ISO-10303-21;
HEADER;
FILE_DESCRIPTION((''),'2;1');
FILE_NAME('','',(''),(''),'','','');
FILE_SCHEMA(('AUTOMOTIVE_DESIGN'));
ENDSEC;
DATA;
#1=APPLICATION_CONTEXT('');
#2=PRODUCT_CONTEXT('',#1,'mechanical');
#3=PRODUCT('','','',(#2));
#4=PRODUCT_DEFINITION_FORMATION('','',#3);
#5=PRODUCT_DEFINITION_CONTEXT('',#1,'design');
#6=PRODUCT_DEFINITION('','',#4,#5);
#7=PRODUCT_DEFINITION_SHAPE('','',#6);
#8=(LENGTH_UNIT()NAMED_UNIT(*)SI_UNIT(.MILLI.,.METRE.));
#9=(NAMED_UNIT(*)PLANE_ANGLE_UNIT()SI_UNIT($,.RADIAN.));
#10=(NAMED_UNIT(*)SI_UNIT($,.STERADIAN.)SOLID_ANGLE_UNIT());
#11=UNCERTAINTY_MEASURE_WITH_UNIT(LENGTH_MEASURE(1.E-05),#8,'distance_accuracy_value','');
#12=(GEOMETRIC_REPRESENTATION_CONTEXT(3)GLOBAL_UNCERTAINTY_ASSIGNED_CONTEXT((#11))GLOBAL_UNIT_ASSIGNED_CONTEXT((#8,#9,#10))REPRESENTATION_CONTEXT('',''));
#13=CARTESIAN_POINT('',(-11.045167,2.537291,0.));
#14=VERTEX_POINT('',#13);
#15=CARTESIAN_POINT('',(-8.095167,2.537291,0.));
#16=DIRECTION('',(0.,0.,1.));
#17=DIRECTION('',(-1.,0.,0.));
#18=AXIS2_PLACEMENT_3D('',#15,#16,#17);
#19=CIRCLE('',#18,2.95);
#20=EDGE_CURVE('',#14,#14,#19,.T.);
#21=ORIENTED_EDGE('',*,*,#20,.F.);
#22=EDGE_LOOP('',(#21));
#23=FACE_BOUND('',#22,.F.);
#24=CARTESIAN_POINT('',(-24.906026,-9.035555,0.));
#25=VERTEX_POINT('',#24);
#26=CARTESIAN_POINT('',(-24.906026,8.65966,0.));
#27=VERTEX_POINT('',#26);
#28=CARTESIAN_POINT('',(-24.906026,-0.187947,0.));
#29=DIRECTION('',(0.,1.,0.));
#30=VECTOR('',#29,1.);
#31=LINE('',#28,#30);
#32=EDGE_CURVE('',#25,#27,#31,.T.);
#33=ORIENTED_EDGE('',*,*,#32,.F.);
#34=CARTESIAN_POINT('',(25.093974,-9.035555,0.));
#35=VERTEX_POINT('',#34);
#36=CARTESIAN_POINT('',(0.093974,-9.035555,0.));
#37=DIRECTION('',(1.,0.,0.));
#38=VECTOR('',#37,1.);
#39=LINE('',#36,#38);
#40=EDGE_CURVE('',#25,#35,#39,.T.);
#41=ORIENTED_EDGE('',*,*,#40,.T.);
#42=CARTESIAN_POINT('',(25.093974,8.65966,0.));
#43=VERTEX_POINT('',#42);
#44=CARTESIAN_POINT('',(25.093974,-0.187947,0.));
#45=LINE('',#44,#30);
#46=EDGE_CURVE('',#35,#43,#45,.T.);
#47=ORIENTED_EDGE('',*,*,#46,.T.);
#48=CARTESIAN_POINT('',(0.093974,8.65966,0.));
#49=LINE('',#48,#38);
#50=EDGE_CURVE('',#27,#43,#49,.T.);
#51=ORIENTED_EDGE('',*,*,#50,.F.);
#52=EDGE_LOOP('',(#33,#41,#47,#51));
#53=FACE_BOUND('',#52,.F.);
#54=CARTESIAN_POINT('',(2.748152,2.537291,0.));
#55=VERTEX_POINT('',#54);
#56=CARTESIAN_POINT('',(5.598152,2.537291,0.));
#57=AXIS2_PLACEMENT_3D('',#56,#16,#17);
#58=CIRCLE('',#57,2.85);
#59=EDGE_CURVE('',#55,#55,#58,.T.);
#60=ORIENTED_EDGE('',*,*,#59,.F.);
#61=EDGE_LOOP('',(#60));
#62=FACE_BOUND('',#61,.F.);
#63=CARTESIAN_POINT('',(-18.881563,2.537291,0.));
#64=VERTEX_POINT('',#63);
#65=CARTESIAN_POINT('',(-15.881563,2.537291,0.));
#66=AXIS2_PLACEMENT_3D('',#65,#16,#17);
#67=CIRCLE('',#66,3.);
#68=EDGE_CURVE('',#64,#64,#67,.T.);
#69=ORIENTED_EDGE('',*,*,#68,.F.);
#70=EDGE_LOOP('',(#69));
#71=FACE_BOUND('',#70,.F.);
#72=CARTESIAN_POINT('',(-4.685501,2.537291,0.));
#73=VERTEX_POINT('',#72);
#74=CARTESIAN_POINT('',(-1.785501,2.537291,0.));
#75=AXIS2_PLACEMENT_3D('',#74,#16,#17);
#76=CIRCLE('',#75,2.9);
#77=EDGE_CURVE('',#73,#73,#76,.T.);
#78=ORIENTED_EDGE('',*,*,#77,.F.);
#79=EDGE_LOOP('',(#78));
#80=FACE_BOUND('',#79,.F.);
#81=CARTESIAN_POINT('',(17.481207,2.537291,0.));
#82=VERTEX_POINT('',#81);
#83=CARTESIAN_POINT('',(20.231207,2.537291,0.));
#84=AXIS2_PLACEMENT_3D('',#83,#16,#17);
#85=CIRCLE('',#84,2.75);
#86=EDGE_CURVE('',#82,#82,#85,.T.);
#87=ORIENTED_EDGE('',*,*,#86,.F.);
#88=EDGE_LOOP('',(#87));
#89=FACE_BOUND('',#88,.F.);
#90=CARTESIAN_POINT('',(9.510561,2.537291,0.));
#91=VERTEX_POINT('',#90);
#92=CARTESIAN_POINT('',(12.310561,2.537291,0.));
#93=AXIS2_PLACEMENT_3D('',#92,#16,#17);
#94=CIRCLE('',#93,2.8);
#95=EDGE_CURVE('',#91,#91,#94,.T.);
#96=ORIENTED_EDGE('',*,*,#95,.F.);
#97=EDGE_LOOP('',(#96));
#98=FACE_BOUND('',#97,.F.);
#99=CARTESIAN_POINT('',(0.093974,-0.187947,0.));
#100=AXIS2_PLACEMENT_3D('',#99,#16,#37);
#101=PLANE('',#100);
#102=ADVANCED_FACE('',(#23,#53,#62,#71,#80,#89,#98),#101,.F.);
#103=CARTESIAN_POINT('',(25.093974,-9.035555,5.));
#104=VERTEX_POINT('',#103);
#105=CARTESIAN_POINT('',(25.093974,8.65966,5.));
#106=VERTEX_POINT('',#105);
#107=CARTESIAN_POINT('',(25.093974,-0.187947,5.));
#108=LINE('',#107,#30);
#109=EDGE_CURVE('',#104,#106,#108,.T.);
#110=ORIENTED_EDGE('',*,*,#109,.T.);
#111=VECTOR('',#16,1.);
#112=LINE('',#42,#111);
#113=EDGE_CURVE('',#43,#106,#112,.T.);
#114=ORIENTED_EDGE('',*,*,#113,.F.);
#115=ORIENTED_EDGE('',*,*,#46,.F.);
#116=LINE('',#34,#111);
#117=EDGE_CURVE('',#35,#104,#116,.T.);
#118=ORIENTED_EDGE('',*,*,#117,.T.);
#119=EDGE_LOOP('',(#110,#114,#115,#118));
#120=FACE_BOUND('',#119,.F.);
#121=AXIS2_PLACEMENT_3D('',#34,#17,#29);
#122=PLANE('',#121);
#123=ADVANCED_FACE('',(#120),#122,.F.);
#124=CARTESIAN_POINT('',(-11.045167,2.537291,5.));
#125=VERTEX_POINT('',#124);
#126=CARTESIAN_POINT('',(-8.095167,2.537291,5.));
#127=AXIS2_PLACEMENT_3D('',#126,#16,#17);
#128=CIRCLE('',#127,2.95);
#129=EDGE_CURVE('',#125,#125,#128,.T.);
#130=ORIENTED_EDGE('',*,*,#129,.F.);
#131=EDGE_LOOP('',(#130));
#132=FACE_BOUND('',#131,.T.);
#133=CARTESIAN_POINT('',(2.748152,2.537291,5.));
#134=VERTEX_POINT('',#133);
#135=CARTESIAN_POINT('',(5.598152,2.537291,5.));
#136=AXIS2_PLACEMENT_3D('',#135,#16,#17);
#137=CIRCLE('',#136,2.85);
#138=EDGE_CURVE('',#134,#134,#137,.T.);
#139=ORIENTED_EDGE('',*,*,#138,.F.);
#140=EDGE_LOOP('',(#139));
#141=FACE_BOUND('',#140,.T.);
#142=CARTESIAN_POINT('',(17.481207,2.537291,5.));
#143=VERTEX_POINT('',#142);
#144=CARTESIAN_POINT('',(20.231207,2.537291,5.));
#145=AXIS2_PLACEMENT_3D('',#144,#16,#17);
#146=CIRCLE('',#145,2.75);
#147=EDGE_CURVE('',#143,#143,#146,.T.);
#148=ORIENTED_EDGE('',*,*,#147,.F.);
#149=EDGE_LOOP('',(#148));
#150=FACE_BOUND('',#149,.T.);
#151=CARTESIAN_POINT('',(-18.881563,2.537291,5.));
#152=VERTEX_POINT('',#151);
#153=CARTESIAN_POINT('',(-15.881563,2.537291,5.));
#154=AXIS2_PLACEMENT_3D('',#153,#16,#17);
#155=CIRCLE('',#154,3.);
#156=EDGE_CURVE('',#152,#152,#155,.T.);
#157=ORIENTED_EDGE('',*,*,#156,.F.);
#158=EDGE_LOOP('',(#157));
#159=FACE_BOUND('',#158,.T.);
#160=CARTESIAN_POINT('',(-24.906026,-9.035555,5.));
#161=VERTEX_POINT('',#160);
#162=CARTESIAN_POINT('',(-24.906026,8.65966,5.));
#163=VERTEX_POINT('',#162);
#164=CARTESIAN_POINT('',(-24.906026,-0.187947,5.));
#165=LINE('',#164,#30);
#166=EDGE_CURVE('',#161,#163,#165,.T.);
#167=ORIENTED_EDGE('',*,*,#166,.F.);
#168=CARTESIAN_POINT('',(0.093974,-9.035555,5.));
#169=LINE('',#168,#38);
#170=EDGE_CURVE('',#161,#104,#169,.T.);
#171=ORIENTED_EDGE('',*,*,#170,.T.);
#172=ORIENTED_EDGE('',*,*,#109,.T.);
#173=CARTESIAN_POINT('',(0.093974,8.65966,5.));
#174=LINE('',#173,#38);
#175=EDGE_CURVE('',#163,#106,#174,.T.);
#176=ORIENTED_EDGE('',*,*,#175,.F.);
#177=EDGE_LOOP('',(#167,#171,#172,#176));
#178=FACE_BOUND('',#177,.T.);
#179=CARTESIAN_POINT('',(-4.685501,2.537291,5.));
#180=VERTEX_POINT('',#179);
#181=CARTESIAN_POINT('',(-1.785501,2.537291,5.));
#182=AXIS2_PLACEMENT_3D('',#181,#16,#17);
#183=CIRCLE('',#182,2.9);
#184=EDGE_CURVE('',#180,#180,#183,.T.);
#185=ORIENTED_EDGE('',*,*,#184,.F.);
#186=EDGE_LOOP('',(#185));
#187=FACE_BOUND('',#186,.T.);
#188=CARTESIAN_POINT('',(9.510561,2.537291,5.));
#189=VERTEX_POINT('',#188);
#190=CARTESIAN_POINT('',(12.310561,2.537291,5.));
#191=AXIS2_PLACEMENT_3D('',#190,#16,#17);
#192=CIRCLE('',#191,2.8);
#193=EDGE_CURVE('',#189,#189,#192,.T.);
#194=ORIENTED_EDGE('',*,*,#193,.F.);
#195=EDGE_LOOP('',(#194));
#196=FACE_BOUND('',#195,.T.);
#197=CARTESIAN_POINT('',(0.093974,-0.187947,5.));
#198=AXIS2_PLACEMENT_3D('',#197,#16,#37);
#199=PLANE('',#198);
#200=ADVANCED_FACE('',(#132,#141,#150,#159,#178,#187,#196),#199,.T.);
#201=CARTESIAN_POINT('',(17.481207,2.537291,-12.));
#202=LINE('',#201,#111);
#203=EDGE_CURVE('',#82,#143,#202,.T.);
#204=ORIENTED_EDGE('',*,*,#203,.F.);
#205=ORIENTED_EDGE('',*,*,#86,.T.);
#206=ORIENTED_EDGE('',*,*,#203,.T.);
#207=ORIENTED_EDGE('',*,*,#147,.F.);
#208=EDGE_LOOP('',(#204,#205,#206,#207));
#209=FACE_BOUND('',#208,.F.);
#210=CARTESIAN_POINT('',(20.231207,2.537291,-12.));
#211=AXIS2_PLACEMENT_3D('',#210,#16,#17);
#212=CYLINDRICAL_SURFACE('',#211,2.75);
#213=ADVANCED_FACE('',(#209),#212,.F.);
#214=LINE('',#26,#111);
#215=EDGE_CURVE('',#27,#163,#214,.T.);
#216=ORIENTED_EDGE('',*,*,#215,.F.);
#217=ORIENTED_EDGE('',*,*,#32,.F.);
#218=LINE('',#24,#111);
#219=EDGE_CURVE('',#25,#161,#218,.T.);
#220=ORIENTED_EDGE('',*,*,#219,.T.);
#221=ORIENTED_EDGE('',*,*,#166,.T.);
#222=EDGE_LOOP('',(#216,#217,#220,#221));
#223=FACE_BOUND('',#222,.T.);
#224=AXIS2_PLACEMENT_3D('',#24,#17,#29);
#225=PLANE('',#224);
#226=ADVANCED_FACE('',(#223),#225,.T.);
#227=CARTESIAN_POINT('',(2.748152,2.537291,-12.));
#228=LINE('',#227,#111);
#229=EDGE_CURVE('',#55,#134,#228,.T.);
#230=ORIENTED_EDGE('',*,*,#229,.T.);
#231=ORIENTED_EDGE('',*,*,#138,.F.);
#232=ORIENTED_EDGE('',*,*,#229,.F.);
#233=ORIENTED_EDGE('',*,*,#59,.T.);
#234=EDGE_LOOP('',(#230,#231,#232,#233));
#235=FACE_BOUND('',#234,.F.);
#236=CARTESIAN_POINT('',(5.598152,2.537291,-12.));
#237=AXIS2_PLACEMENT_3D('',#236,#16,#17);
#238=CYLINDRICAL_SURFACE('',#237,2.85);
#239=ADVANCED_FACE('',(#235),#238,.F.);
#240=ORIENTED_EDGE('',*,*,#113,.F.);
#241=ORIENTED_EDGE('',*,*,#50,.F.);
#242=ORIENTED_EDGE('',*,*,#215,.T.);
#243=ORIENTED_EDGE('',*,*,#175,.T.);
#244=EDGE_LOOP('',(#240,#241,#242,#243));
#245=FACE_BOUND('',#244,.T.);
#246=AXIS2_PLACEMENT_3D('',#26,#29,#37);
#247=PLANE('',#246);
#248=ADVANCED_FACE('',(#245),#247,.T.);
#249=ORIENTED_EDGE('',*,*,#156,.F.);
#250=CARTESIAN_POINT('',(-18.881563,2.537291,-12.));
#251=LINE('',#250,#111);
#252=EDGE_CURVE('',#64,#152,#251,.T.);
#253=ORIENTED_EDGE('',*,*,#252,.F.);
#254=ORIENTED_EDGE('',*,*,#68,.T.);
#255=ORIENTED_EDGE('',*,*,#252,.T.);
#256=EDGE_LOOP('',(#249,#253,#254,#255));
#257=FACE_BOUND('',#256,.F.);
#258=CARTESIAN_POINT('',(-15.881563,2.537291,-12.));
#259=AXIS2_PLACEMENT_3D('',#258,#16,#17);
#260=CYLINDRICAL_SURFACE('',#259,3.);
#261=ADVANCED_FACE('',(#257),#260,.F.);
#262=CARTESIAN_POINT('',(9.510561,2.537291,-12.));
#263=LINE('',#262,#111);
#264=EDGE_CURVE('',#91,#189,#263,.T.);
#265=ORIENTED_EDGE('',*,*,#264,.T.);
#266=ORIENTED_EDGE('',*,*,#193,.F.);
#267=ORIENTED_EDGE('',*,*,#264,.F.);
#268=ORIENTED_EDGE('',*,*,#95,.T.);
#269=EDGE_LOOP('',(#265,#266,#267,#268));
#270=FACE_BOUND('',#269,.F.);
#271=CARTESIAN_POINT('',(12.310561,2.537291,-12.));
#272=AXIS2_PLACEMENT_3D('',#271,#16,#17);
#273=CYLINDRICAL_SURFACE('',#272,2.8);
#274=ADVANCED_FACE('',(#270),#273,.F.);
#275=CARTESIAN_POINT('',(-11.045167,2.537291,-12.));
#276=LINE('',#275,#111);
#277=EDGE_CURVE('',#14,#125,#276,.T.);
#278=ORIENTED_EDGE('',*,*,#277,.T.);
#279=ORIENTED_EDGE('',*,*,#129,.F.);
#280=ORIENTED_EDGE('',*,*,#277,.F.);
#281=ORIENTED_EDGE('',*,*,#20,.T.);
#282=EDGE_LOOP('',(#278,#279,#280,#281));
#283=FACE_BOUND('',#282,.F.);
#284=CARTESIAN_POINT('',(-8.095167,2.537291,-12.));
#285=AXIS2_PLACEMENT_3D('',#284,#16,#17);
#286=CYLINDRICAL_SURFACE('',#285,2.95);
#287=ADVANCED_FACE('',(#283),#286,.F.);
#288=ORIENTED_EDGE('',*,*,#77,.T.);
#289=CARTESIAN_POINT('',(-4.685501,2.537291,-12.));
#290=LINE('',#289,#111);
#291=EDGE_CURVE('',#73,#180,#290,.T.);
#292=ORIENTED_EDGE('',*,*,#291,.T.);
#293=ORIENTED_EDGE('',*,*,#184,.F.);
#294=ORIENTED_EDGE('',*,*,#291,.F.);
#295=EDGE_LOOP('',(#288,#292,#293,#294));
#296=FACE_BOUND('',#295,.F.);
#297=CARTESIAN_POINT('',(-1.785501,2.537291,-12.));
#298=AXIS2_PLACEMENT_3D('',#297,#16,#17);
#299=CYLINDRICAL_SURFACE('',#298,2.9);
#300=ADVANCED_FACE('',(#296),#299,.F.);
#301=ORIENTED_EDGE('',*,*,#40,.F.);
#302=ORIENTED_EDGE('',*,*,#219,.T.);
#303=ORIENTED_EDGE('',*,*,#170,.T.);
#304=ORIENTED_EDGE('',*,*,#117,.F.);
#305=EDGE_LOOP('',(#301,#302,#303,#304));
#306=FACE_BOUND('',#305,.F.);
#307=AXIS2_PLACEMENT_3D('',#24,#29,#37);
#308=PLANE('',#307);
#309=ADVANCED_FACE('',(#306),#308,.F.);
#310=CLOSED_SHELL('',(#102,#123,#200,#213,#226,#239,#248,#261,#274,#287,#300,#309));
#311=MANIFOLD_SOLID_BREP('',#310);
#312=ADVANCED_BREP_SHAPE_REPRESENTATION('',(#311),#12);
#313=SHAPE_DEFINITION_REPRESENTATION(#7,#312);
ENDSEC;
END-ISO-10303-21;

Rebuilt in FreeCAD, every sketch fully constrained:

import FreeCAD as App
import Part
import Sketcher
Q = App.Units.Quantity


def add_polygon(sketch, points):
    """Adds a closed chain of lines whose ends are joined by coincident constraints."""
    first, n = sketch.GeometryCount, len(points)
    for a, b in zip(points, points[1:] + points[:1]):
        sketch.addGeometry(Part.LineSegment(App.Vector(*a, 0), App.Vector(*b, 0)), False)
    for i in range(n):
        sketch.addConstraint(Sketcher.Constraint("Coincident", first + i, 2, first + (i + 1) % n, 1))

doc = App.newDocument("Part")
body = doc.addObject("PartDesign::Body", "Body")

sketch1 = body.newObject("Sketcher::SketchObject", "Sketch")
sketch1.AttachmentSupport = (doc.getObject("XY_Plane"), [""])
sketch1.MapMode = "FlatFace"
add_polygon(sketch1, [(-24.906026, 8.65966), (-24.906026, -9.035555), (25.093974, -9.035555), (25.093974, 8.65966)])
sketch1.addConstraint(Sketcher.Constraint("Vertical", 0))
sketch1.addConstraint(Sketcher.Constraint("Horizontal", 1))
sketch1.addConstraint(Sketcher.Constraint("Vertical", 2))
sketch1.addConstraint(Sketcher.Constraint("Horizontal", 3))
sketch1.addConstraint(Sketcher.Constraint("DistanceX", 1, 1, 1, 2, Q("50 mm")))
sketch1.addConstraint(Sketcher.Constraint("DistanceY", 0, 2, 0, 1, Q("17.695214 mm")))
sketch1.addConstraint(Sketcher.Constraint("DistanceY", -1, 1, 2, 2, Q("8.65966 mm")))
sketch1.addConstraint(Sketcher.Constraint("DistanceX", 0, 2, -1, 1, Q("24.906026 mm")))
pad1 = body.newObject("PartDesign::Pad", "Pad")
pad1.Profile = sketch1
pad1.Length = 5

sketch2 = body.newObject("Sketcher::SketchObject", "Sketch001")
sketch2.AttachmentSupport = (doc.getObject("XY_Plane"), [""])
sketch2.MapMode = "FlatFace"
sketch2.addGeometry(Part.Circle(App.Vector(-15.881563, 2.537291, 0), App.Vector(0, 0, 1), 3), False)
sketch2.addConstraint(Sketcher.Constraint("Diameter", 0, Q("6 mm")))
sketch2.addConstraint(Sketcher.Constraint("DistanceY", -1, 1, 0, 3, Q("2.537291 mm")))
sketch2.addConstraint(Sketcher.Constraint("DistanceX", 0, 3, -1, 1, Q("15.881563 mm")))
doc.recompute()
hole = body.newObject("PartDesign::Hole", "Hole")
hole.Profile = sketch2
hole.ThreadType = "None"
hole.Diameter = 6
hole.DepthType = "Dimension"
hole.Depth = 12
hole.DrillPoint = "Angled"
hole.DrillPointAngle = 118
hole.Reversed = True

sketch3 = body.newObject("Sketcher::SketchObject", "Sketch002")
sketch3.AttachmentSupport = (doc.getObject("XY_Plane"), [""])
sketch3.MapMode = "FlatFace"
sketch3.addGeometry(Part.Circle(App.Vector(-8.095167, 2.537291, 0), App.Vector(0, 0, 1), 2.95), False)
sketch3.addConstraint(Sketcher.Constraint("Diameter", 0, Q("5.9 mm")))
sketch3.addConstraint(Sketcher.Constraint("DistanceY", -1, 1, 0, 3, Q("2.537291 mm")))
sketch3.addConstraint(Sketcher.Constraint("DistanceX", 0, 3, -1, 1, Q("8.095167 mm")))
doc.recompute()
hole2 = body.newObject("PartDesign::Hole", "Hole001")
hole2.Profile = sketch3
hole2.ThreadType = "None"
hole2.Diameter = 5.9
hole2.DepthType = "Dimension"
hole2.Depth = 12
hole2.DrillPoint = "Angled"
hole2.DrillPointAngle = 118
hole2.Reversed = True

sketch4 = body.newObject("Sketcher::SketchObject", "Sketch003")
sketch4.AttachmentSupport = (doc.getObject("XY_Plane"), [""])
sketch4.MapMode = "FlatFace"
sketch4.addGeometry(Part.Circle(App.Vector(-1.785501, 2.537291, 0), App.Vector(0, 0, 1), 2.9), False)
sketch4.addConstraint(Sketcher.Constraint("Diameter", 0, Q("5.8 mm")))
sketch4.addConstraint(Sketcher.Constraint("DistanceX", 0, 3, -1, 1, Q("1.785501 mm")))
sketch4.addConstraint(Sketcher.Constraint("DistanceY", -1, 1, 0, 3, Q("2.537291 mm")))
doc.recompute()
hole3 = body.newObject("PartDesign::Hole", "Hole002")
hole3.Profile = sketch4
hole3.ThreadType = "None"
hole3.Diameter = 5.8
hole3.DepthType = "Dimension"
hole3.Depth = 12
hole3.DrillPoint = "Angled"
hole3.DrillPointAngle = 118
hole3.Reversed = True

sketch5 = body.newObject("Sketcher::SketchObject", "Sketch004")
sketch5.AttachmentSupport = (doc.getObject("XY_Plane"), [""])
sketch5.MapMode = "FlatFace"
sketch5.addGeometry(Part.Circle(App.Vector(5.598152, 2.537291, 0), App.Vector(0, 0, 1), 2.85), False)
sketch5.addConstraint(Sketcher.Constraint("Diameter", 0, Q("5.7 mm")))
sketch5.addConstraint(Sketcher.Constraint("DistanceX", -1, 1, 0, 3, Q("5.598152 mm")))
sketch5.addConstraint(Sketcher.Constraint("DistanceY", -1, 1, 0, 3, Q("2.537291 mm")))
doc.recompute()
hole4 = body.newObject("PartDesign::Hole", "Hole003")
hole4.Profile = sketch5
hole4.ThreadType = "None"
hole4.Diameter = 5.7
hole4.DepthType = "Dimension"
hole4.Depth = 12
hole4.DrillPoint = "Angled"
hole4.DrillPointAngle = 118
hole4.Reversed = True

sketch6 = body.newObject("Sketcher::SketchObject", "Sketch005")
sketch6.AttachmentSupport = (doc.getObject("XY_Plane"), [""])
sketch6.MapMode = "FlatFace"
sketch6.addGeometry(Part.Circle(App.Vector(12.310561, 2.537291, 0), App.Vector(0, 0, 1), 2.8), False)
sketch6.addConstraint(Sketcher.Constraint("Diameter", 0, Q("5.6 mm")))
sketch6.addConstraint(Sketcher.Constraint("DistanceX", -1, 1, 0, 3, Q("12.310561 mm")))
sketch6.addConstraint(Sketcher.Constraint("DistanceY", -1, 1, 0, 3, Q("2.537291 mm")))
doc.recompute()
hole5 = body.newObject("PartDesign::Hole", "Hole004")
hole5.Profile = sketch6
hole5.ThreadType = "None"
hole5.Diameter = 5.6
hole5.DepthType = "Dimension"
hole5.Depth = 12
hole5.DrillPoint = "Angled"
hole5.DrillPointAngle = 118
hole5.Reversed = True

sketch7 = body.newObject("Sketcher::SketchObject", "Sketch006")
sketch7.AttachmentSupport = (doc.getObject("XY_Plane"), [""])
sketch7.MapMode = "FlatFace"
sketch7.addGeometry(Part.Circle(App.Vector(20.231207, 2.537291, 0), App.Vector(0, 0, 1), 2.75), False)
sketch7.addConstraint(Sketcher.Constraint("Diameter", 0, Q("5.5 mm")))
sketch7.addConstraint(Sketcher.Constraint("DistanceY", -1, 1, 0, 3, Q("2.537291 mm")))
sketch7.addConstraint(Sketcher.Constraint("DistanceX", -1, 1, 0, 3, Q("20.231207 mm")))
doc.recompute()
hole6 = body.newObject("PartDesign::Hole", "Hole005")
hole6.Profile = sketch7
hole6.ThreadType = "None"
hole6.Diameter = 5.5
hole6.DepthType = "Dimension"
hole6.Depth = 12
hole6.DrillPoint = "Angled"
hole6.DrillPointAngle = 118
hole6.Reversed = True

doc.recompute()
